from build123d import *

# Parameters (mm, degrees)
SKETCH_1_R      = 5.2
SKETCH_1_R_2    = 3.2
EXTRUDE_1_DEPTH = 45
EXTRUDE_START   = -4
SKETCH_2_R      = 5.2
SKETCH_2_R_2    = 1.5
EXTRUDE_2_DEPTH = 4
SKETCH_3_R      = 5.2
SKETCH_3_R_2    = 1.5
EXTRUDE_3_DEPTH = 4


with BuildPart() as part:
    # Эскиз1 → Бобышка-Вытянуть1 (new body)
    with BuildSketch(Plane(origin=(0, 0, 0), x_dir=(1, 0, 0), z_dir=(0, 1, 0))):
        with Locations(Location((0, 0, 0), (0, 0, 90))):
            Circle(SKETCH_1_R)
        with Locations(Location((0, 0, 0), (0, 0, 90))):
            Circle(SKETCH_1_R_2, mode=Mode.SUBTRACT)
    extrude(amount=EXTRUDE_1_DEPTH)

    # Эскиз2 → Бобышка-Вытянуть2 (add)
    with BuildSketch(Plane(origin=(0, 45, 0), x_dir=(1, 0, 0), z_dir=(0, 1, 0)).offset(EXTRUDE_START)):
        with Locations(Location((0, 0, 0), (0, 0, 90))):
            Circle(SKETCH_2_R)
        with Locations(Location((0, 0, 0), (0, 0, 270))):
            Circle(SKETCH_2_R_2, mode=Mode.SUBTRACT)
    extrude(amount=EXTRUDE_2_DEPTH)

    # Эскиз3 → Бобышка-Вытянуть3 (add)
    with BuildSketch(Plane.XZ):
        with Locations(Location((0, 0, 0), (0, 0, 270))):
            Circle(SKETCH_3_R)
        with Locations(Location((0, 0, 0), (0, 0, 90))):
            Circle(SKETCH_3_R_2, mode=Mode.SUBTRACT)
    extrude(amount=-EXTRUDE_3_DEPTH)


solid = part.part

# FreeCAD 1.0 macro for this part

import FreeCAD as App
import Part
import Sketcher

V = App.Vector
Q = App.Units.Quantity

doc = App.newDocument("Part")
body = doc.addObject("PartDesign::Body", "Body")

# Sketch on XZ plane
sketch1 = body.newObject("Sketcher::SketchObject", "Sketch")
sketch1.AttachmentSupport = (doc.getObject("XZ_Plane"), [""])
sketch1.MapMode = "FlatFace"
sketch1.addGeometry(Part.Circle(V(0, 0, 0), V(0, 0, 1), 5.2), False)
sketch1.addGeometry(Part.Circle(V(0, 0, 0), V(0, 0, 1), 3.2), False)
sketch1.addConstraint(Sketcher.Constraint("Coincident", 0, 3, -1, 1))
sketch1.addConstraint(Sketcher.Constraint("Coincident", 1, 3, -1, 1))
sketch1.addConstraint(Sketcher.Constraint("Diameter", 0, Q("10.4 mm")))
sketch1.addConstraint(Sketcher.Constraint("Diameter", 1, Q("6.4 mm")))
pad1 = body.newObject("PartDesign::Pad", "Pad")
pad1.Profile = sketch1
pad1.Length = 45
pad1.Reversed = True

# Sketch on XZ plane
sketch2 = body.newObject("Sketcher::SketchObject", "Sketch001")
sketch2.AttachmentSupport = (doc.getObject("XZ_Plane"), [""])
sketch2.MapMode = "FlatFace"
sketch2.AttachmentOffset = App.Placement(V(0, 0, -41), App.Rotation())
sketch2.addGeometry(Part.Circle(V(0, 0, 0), V(0, 0, 1), 5.2), False)
sketch2.addGeometry(Part.Circle(V(0, 0, 0), V(0, 0, 1), 1.5), False)
sketch2.addConstraint(Sketcher.Constraint("Coincident", 0, 3, -1, 1))
sketch2.addConstraint(Sketcher.Constraint("Coincident", 1, 3, -1, 1))
sketch2.addConstraint(Sketcher.Constraint("Diameter", 1, Q("3 mm")))
sketch2.addConstraint(Sketcher.Constraint("Diameter", 0, Q("10.4 mm")))
pad2 = body.newObject("PartDesign::Pad", "Pad001")
pad2.Profile = sketch2
pad2.Length = 4
pad2.Reversed = True

# Sketch on XZ plane
sketch3 = body.newObject("Sketcher::SketchObject", "Sketch002")
sketch3.AttachmentSupport = (doc.getObject("XZ_Plane"), [""])
sketch3.MapMode = "FlatFace"
sketch3.addGeometry(Part.Circle(V(0, 0, 0), V(0, 0, 1), 5.2), False)
sketch3.addGeometry(Part.Circle(V(0, 0, 0), V(0, 0, 1), 1.5), False)
sketch3.addConstraint(Sketcher.Constraint("Coincident", 0, 3, -1, 1))
sketch3.addConstraint(Sketcher.Constraint("Coincident", 1, 3, -1, 1))
sketch3.addConstraint(Sketcher.Constraint("Diameter", 1, Q("3 mm")))
sketch3.addConstraint(Sketcher.Constraint("Diameter", 0, Q("10.4 mm")))
pad3 = body.newObject("PartDesign::Pad", "Pad002")
pad3.Profile = sketch3
pad3.Length = 4
pad3.Reversed = True

doc.recompute()
